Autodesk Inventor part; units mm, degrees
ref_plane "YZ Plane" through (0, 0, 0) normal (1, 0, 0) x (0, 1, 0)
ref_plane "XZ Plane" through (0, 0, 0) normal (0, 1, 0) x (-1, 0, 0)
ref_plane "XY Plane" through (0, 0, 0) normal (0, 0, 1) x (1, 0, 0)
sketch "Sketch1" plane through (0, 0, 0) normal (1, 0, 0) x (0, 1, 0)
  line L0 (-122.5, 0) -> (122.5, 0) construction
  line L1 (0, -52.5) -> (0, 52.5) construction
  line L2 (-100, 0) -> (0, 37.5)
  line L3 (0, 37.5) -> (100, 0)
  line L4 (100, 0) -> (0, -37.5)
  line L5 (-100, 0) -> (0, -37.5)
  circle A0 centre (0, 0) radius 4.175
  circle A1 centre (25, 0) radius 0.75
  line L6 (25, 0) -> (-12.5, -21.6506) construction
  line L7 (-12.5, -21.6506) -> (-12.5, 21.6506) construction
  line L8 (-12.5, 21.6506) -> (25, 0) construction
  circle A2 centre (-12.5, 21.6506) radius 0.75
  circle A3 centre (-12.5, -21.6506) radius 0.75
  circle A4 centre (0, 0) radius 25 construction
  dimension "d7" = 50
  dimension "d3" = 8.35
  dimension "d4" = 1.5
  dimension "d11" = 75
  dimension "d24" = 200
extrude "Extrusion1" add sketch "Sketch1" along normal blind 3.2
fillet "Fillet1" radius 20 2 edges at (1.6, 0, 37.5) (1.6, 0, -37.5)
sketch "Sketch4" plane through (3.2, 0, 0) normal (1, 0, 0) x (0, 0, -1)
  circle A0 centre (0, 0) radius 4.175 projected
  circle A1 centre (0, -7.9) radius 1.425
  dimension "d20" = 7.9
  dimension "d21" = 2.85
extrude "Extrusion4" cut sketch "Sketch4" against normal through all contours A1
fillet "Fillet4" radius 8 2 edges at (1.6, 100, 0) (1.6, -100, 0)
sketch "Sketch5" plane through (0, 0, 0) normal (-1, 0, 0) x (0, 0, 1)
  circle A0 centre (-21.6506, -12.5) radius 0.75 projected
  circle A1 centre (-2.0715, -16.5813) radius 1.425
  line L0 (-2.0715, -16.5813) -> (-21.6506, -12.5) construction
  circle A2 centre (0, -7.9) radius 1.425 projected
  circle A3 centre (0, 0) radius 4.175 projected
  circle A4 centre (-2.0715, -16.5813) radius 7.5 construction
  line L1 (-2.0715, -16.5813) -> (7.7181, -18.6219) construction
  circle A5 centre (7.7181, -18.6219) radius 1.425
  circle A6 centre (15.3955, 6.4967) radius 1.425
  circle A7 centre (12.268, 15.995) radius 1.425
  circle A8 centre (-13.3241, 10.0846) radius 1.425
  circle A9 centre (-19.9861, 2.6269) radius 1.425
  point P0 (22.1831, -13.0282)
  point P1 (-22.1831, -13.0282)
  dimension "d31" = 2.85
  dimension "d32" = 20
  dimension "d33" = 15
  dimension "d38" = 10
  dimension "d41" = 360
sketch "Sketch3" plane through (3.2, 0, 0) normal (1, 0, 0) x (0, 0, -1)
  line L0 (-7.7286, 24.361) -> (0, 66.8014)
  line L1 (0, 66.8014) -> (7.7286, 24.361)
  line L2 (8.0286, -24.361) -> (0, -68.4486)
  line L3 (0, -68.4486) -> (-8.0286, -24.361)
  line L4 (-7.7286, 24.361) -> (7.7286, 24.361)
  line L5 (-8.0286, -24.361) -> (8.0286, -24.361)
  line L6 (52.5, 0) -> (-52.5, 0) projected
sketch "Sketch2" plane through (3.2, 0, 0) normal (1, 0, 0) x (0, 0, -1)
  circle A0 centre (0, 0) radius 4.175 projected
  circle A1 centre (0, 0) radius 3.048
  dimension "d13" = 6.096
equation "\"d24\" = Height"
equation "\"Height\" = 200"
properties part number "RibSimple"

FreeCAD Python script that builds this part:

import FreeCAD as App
import Part
import Sketcher
Q = App.Units.Quantity


def edges_at(feature, points):
    """Names of the edges that pass closest to the given points."""
    edges = feature.Shape.Edges
    near = lambda p: min(range(len(edges)), key=lambda i: edges[i].distToShape(Part.Vertex(*p))[0])
    return sorted({f"Edge{near(p) + 1}" for p in points})

doc = App.newDocument("Part")
params = doc.addObject("Spreadsheet::Sheet", "Params")
for row, (alias, value) in enumerate([
    ("sketch1_diameter", "1.5 mm"),
    ("sketch1_diameter2", "8.35 mm"),
    ("pad1_length", "3.2 mm"),
    ("fillet_radius", "20 mm"),
    ("sketch2_diameter", "2.85 mm"),
    ("fillet2_radius", "8 mm"),
], start=1):
    params.set(f"A{row}", alias)
    params.set(f"B{row}", "=" + value)
    params.setAlias(f"B{row}", alias)

body = doc.addObject("PartDesign::Body", "Body")

sketch1 = body.newObject("Sketcher::SketchObject", "Sketch")
sketch1.AttachmentSupport = (doc.getObject("YZ_Plane"), [""])
sketch1.MapMode = "FlatFace"
sketch1.addGeometry([
    Part.LineSegment(App.Vector(0, 37.5, 0), App.Vector(-100, 0, 0)),
    Part.LineSegment(App.Vector(-100, 0, 0), App.Vector(0, -37.5, 0)),
    Part.LineSegment(App.Vector(0, -37.5, 0), App.Vector(100, 0, 0)),
    Part.LineSegment(App.Vector(100, 0, 0), App.Vector(0, 37.5, 0)),
    Part.Circle(App.Vector(-12.5, -21.7, 0), App.Vector(0, 0, 1), 0.8),
    Part.Circle(App.Vector(-12.5, 21.7, 0), App.Vector(0, 0, 1), 0.8),
    Part.Circle(App.Vector(0, 0, 0), App.Vector(0, 0, 1), 4.2),
    Part.Circle(App.Vector(25, 0, 0), App.Vector(0, 0, 1), 0.8),
], False)
sketch1.addConstraint([
    Sketcher.Constraint("Coincident", 0, 2, 1, 1),
    Sketcher.Constraint("Coincident", 1, 2, 2, 1),
    Sketcher.Constraint("Coincident", 2, 2, 3, 1),
    Sketcher.Constraint("Coincident", 3, 2, 0, 1),
    Sketcher.Constraint("Coincident", 6, 3, -1, 1),
    Sketcher.Constraint("Equal", 4, 5),
    Sketcher.Constraint("Equal", 5, 7),
    Sketcher.Constraint("Symmetric", 0, 2, 2, 2, -1, 1),
    Sketcher.Constraint("Symmetric", 1, 2, 3, 2, -1, 1),
    Sketcher.Constraint("Symmetric", 4, 3, 5, 3, -1),
    Sketcher.Constraint("PointOnObject", 7, 3, -1),
    Sketcher.Constraint("PointOnObject", 0, 2, -1),
    Sketcher.Constraint("PointOnObject", 1, 2, -2),
    Sketcher.Constraint("Diameter", 4, Q("1.5 mm")),
    Sketcher.Constraint("Diameter", 6, Q("8.35 mm")),
    Sketcher.Constraint("DistanceX", 7, 3, 2, 2, Q("75 mm")),
    Sketcher.Constraint("DistanceY", 1, 2, 3, 2, Q("75 mm")),
    Sketcher.Constraint("DistanceX", -1, 1, 7, 3, Q("25 mm")),
    Sketcher.Constraint("DistanceX", 4, 3, -1, 1, Q("12.5 mm")),
    Sketcher.Constraint("DistanceY", 4, 3, -1, 1, Q("21.6506 mm")),
])
sketch1.setExpression("Constraints[13]", "Params.sketch1_diameter")
sketch1.setExpression("Constraints[14]", "Params.sketch1_diameter2")
pad1 = body.newObject("PartDesign::Pad", "Pad")
pad1.Profile = sketch1
pad1.setExpression("Length", "Params.pad1_length")
doc.recompute()

fillet = body.newObject("PartDesign::Fillet", "Fillet")
fillet.Base = (pad1, edges_at(pad1, [(1.6, 0, 37.5), (1.6, 0, -37.5)]))
fillet.setExpression("Radius", "Params.fillet_radius")

sketch2 = body.newObject("Sketcher::SketchObject", "Sketch001")
sketch2.AttachmentSupport = (doc.getObject("YZ_Plane"), [""])
sketch2.MapMode = "FlatFace"
sketch2.AttachmentOffset = App.Placement(App.Vector(0, 0, 3.2), App.Rotation())
sketch2.addGeometry(Part.Circle(App.Vector(-7.9, 0, 0), App.Vector(0, 0, 1), 1.4), False)
sketch2.addConstraint([
    Sketcher.Constraint("PointOnObject", 0, 3, -1),
    Sketcher.Constraint("Diameter", 0, Q("2.85 mm")),
    Sketcher.Constraint("DistanceX", 0, 3, -1, 1, Q("7.9 mm")),
])
sketch2.setExpression("Constraints[1]", "Params.sketch2_diameter")
pocket1 = body.newObject("PartDesign::Pocket", "Pocket")
pocket1.Profile = sketch2
pocket1.Type = "ThroughAll"
doc.recompute()

fillet2 = body.newObject("PartDesign::Fillet", "Fillet001")
fillet2.Base = (pocket1, edges_at(pocket1, [(1.6, 100, 0), (1.6, -100, 0)]))
fillet2.setExpression("Radius", "Params.fillet2_radius")

doc.recompute()
